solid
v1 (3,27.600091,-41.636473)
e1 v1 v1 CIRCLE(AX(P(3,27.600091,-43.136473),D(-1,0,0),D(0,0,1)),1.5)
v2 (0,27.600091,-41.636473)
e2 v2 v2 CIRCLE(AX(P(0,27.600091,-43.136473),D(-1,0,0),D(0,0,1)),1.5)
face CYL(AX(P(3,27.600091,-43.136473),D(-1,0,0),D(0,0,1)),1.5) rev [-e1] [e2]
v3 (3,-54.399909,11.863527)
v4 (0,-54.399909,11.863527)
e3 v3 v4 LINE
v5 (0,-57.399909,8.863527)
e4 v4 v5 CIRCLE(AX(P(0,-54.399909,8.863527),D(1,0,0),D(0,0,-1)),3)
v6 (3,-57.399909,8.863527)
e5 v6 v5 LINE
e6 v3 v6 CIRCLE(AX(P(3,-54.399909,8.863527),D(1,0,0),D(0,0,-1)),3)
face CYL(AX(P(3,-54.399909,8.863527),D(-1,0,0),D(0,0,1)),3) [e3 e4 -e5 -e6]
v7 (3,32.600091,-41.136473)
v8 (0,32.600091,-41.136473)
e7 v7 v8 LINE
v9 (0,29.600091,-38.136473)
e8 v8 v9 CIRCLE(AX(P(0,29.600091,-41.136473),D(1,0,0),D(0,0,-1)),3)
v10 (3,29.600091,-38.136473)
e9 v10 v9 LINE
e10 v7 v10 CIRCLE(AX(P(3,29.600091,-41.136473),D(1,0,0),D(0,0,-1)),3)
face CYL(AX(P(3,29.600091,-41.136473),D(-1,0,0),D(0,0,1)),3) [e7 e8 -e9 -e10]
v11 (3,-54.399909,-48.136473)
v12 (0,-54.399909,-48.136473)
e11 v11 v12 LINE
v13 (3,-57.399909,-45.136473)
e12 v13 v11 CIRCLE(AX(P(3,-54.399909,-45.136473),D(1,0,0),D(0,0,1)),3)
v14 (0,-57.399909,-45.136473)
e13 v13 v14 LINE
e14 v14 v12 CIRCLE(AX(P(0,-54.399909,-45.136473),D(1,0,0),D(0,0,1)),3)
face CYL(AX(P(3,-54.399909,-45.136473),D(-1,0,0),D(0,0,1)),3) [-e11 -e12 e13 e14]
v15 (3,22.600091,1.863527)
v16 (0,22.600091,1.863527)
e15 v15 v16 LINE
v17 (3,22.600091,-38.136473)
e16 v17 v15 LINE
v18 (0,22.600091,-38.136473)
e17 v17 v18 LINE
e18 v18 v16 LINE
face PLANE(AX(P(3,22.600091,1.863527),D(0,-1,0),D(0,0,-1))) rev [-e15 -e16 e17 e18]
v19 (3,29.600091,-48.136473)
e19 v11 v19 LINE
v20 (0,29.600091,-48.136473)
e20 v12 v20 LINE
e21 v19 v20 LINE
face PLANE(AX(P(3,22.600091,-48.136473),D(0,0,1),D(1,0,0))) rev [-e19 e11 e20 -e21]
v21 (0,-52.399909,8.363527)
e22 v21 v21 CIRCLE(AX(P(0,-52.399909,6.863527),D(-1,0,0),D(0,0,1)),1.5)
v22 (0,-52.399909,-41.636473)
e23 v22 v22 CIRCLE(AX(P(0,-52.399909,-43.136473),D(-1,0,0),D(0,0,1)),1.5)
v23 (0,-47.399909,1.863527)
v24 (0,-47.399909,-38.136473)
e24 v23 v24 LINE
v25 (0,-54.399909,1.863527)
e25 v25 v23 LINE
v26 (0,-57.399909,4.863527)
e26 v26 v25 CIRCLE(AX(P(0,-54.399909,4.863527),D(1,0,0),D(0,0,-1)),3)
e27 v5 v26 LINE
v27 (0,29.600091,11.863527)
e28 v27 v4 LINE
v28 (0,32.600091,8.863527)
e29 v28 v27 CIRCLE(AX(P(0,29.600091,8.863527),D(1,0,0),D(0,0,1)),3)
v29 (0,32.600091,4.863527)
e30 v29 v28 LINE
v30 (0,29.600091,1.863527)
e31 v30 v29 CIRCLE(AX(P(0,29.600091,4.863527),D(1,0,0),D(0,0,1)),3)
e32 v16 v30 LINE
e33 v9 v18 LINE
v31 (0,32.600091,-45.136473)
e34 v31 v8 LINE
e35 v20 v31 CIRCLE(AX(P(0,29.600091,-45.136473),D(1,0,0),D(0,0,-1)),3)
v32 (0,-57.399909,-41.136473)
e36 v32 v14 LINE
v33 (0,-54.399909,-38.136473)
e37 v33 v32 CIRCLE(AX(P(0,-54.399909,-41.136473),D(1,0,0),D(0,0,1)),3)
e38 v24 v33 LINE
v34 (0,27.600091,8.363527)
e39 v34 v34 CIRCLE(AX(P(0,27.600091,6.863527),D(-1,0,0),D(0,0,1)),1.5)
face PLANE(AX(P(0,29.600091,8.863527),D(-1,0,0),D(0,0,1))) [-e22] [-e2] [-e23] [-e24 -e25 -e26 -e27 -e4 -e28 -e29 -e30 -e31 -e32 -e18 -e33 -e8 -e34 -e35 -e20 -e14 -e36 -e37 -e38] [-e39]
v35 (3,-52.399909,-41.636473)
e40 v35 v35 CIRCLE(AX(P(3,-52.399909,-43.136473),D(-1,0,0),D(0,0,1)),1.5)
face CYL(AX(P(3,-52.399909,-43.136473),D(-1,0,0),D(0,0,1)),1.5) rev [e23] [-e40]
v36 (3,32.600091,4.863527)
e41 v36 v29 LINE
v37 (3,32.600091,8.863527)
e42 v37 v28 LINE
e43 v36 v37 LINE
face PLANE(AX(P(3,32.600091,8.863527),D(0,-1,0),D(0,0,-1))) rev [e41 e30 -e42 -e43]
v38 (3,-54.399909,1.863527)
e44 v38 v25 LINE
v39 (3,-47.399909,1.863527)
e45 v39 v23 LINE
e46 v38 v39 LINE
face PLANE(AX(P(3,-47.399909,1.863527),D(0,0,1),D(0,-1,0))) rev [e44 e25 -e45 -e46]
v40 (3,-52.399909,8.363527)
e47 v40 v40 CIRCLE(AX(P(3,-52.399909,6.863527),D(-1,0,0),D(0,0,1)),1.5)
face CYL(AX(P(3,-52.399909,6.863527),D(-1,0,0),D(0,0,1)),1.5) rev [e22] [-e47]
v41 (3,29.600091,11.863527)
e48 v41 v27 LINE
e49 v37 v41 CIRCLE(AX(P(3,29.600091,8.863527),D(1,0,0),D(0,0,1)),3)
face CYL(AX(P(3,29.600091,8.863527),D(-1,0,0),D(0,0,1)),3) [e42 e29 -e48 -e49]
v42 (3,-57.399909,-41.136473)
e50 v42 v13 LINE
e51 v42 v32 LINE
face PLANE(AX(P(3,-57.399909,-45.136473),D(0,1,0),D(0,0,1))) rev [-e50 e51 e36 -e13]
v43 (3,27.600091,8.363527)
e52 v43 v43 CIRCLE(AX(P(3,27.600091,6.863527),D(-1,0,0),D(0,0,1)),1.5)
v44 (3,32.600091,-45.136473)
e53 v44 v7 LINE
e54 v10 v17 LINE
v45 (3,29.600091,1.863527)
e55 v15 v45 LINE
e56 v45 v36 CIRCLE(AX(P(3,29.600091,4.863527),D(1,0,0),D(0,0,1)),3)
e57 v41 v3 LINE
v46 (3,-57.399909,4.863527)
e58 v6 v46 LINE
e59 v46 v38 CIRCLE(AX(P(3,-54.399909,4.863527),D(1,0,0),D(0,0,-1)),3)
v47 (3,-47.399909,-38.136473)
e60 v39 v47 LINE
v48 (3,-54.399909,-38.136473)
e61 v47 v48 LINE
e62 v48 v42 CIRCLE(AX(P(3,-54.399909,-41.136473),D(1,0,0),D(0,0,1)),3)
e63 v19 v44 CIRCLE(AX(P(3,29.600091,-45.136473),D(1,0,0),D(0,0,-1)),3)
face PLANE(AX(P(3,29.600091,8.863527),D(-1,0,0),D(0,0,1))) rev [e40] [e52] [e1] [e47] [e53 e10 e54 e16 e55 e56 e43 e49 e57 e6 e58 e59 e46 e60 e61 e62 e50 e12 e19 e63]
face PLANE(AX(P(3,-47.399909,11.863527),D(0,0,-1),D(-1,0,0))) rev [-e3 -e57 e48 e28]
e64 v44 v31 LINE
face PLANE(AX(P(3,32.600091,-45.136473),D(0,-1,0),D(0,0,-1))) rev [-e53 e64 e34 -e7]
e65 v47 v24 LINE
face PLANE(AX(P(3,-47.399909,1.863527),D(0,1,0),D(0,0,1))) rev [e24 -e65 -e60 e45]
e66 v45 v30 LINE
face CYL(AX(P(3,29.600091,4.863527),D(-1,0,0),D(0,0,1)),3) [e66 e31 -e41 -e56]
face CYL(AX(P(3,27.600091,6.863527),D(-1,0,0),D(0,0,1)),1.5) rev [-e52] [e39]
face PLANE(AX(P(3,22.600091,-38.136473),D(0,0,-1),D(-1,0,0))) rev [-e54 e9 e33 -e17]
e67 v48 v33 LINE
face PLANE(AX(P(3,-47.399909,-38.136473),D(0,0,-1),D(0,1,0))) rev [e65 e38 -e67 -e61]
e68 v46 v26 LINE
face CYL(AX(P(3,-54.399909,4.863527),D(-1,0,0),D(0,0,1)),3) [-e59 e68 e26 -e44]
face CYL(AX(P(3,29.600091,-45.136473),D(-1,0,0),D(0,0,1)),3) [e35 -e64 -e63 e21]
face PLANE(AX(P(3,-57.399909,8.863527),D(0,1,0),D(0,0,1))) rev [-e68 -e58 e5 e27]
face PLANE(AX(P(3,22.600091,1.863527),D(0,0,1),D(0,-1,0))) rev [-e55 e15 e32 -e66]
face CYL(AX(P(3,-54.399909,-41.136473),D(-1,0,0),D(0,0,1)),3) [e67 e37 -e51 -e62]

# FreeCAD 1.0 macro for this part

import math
import FreeCAD as App
import Part
import Sketcher
from FreeCAD import Vector

doc = App.newDocument("Part")
params = doc.addObject("Spreadsheet::Sheet", "Params")
for row, (alias, value) in enumerate([
    ("sketch1_radius", "3 mm"),
    ("sketch1_width", "7 mm"),
    ("sketch1_width2", "84 mm"),
    ("sketch1_height", "40 mm"),
    ("sketch1_height2", "4 mm"),
    ("pad1_length", "3 mm"),
    ("sketch2_diameter", "3 mm"),
], start=1):
    params.set(f"A{row}", alias)
    params.set(f"B{row}", "=" + value)
    params.setAlias(f"B{row}", alias)

body = doc.addObject("PartDesign::Body", "Body")

sketch1 = doc.addObject("Sketcher::SketchObject", "Sketch")
body.addObject(sketch1)
sketch1.AttachmentSupport = (doc.YZ_Plane, [""])
sketch1.MapMode = "FlatFace"
sketch1.addGeometry([
    Part.LineSegment(Vector(22.600091, -38.136473, 0), Vector(22.600091, 1.863527, 0)),
    Part.LineSegment(Vector(22.600091, 1.863527, 0), Vector(29.600091, 1.863527, 0)),
    Part.ArcOfCircle(Part.Circle(Vector(29.600091, 4.863527, 0), Vector(0, 0, 1), 3), math.radians(-90), math.radians(0)),
    Part.LineSegment(Vector(32.600091, 4.863527, 0), Vector(32.600091, 8.863527, 0)),
    Part.ArcOfCircle(Part.Circle(Vector(29.600091, 8.863527, 0), Vector(0, 0, 1), 3), math.radians(0), math.radians(90)),
    Part.LineSegment(Vector(29.600091, 11.863527, 0), Vector(-54.399909, 11.863527, 0)),
    Part.ArcOfCircle(Part.Circle(Vector(-54.399909, 8.863527, 0), Vector(0, 0, 1), 3), math.radians(90), math.radians(180)),
    Part.LineSegment(Vector(-57.399909, 8.863527, 0), Vector(-57.399909, 4.863527, 0)),
    Part.ArcOfCircle(Part.Circle(Vector(-54.399909, 4.863527, 0), Vector(0, 0, 1), 3), math.radians(-180), math.radians(-90)),
    Part.LineSegment(Vector(-54.399909, 1.863527, 0), Vector(-47.399909, 1.863527, 0)),
    Part.LineSegment(Vector(-47.399909, 1.863527, 0), Vector(-47.399909, -38.136473, 0)),
    Part.LineSegment(Vector(-47.399909, -38.136473, 0), Vector(-54.399909, -38.136473, 0)),
    Part.ArcOfCircle(Part.Circle(Vector(-54.399909, -41.136473, 0), Vector(0, 0, 1), 3), math.radians(90), math.radians(180)),
    Part.LineSegment(Vector(-57.399909, -41.136473, 0), Vector(-57.399909, -45.136473, 0)),
    Part.ArcOfCircle(Part.Circle(Vector(-54.399909, -45.136473, 0), Vector(0, 0, 1), 3), math.radians(-180), math.radians(-90)),
    Part.LineSegment(Vector(-54.399909, -48.136473, 0), Vector(29.600091, -48.136473, 0)),
    Part.ArcOfCircle(Part.Circle(Vector(29.600091, -45.136473, 0), Vector(0, 0, 1), 3), math.radians(-90), math.radians(0)),
    Part.LineSegment(Vector(32.600091, -45.136473, 0), Vector(32.600091, -41.136473, 0)),
    Part.ArcOfCircle(Part.Circle(Vector(29.600091, -41.136473, 0), Vector(0, 0, 1), 3), math.radians(0), math.radians(90)),
    Part.LineSegment(Vector(29.600091, -38.136473, 0), Vector(22.600091, -38.136473, 0)),
], False)
sketch1.addConstraint([
    Sketcher.Constraint("Coincident", 0, 2, 1, 1),
    Sketcher.Constraint("Tangent", 1, 2, 2, 1),
    Sketcher.Constraint("Tangent", 2, 2, 3, 1),
    Sketcher.Constraint("Tangent", 3, 2, 4, 1),
    Sketcher.Constraint("Tangent", 4, 2, 5, 1),
    Sketcher.Constraint("Tangent", 5, 2, 6, 1),
    Sketcher.Constraint("Tangent", 6, 2, 7, 1),
    Sketcher.Constraint("Tangent", 7, 2, 8, 1),
    Sketcher.Constraint("Tangent", 8, 2, 9, 1),
    Sketcher.Constraint("Coincident", 9, 2, 10, 1),
    Sketcher.Constraint("Coincident", 10, 2, 11, 1),
    Sketcher.Constraint("Tangent", 11, 2, 12, 1),
    Sketcher.Constraint("Tangent", 12, 2, 13, 1),
    Sketcher.Constraint("Tangent", 13, 2, 14, 1),
    Sketcher.Constraint("Tangent", 14, 2, 15, 1),
    Sketcher.Constraint("Tangent", 15, 2, 16, 1),
    Sketcher.Constraint("Tangent", 16, 2, 17, 1),
    Sketcher.Constraint("Tangent", 17, 2, 18, 1),
    Sketcher.Constraint("Tangent", 18, 2, 19, 1),
    Sketcher.Constraint("Coincident", 19, 2, 0, 1),
    Sketcher.Constraint("Vertical", 0),
    Sketcher.Constraint("Horizontal", 1),
    Sketcher.Constraint("Vertical", 3),
    Sketcher.Constraint("Horizontal", 5),
    Sketcher.Constraint("Vertical", 7),
    Sketcher.Constraint("Horizontal", 9),
    Sketcher.Constraint("Vertical", 10),
    Sketcher.Constraint("Horizontal", 11),
    Sketcher.Constraint("Vertical", 13),
    Sketcher.Constraint("Horizontal", 15),
    Sketcher.Constraint("Vertical", 17),
    Sketcher.Constraint("Horizontal", 19),
    Sketcher.Constraint("Equal", 2, 4),
    Sketcher.Constraint("Equal", 4, 6),
    Sketcher.Constraint("Equal", 6, 8),
    Sketcher.Constraint("Equal", 8, 12),
    Sketcher.Constraint("Equal", 12, 14),
    Sketcher.Constraint("Equal", 14, 16),
    Sketcher.Constraint("Equal", 16, 18),
    Sketcher.Constraint("Horizontal", 2, 3, 8, 3),
    Sketcher.Constraint("Horizontal", 12, 3, 18, 3),
    Sketcher.Constraint("Vertical", 8, 3, 12, 3),
    Sketcher.Constraint("Vertical", 4, 3, 16, 3),
    Sketcher.Constraint("Equal", 1, 9),
    Sketcher.Constraint("Equal", 7, 13),
    Sketcher.Constraint("Radius", 2, 3.0),
    Sketcher.Constraint("DistanceX", 1, 1, 1, 2, 7.0),
    Sketcher.Constraint("DistanceX", 5, 2, 5, 1, 84.0),
    Sketcher.Constraint("DistanceY", 0, 1, 0, 2, 40.0),
    Sketcher.Constraint("DistanceY", 3, 1, 3, 2, 4.0),
    Sketcher.Constraint("DistanceX", -1, 1, 2, 3, 29.600091),
    Sketcher.Constraint("DistanceY", -1, 1, 2, 3, 4.863527),
])
sketch1.setExpression("Constraints[45]", "Params.sketch1_radius")
sketch1.setExpression("Constraints[46]", "Params.sketch1_width")
sketch1.setExpression("Constraints[47]", "Params.sketch1_width2")
sketch1.setExpression("Constraints[48]", "Params.sketch1_height")
sketch1.setExpression("Constraints[49]", "Params.sketch1_height2")
pad1 = doc.addObject("PartDesign::Pad", "Pad")
body.addObject(pad1)
pad1.Profile = sketch1
pad1.setExpression("Length", "Params.pad1_length")

sketch2 = doc.addObject("Sketcher::SketchObject", "Sketch001")
body.addObject(sketch2)
sketch2.AttachmentSupport = (doc.YZ_Plane, [""])
sketch2.MapMode = "FlatFace"
sketch2.addGeometry([
    Part.Circle(Vector(27.600091, -43.136473, 0), Vector(0, 0, 1), 1.5),
    Part.Circle(Vector(27.600091, 6.863527, 0), Vector(0, 0, 1), 1.5),
    Part.Circle(Vector(-52.399909, 6.863527, 0), Vector(0, 0, 1), 1.5),
    Part.Circle(Vector(-52.399909, -43.136473, 0), Vector(0, 0, 1), 1.5),
], False)
sketch2.addConstraint([
    Sketcher.Constraint("Equal", 0, 1),
    Sketcher.Constraint("Equal", 1, 2),
    Sketcher.Constraint("Equal", 2, 3),
    Sketcher.Constraint("Horizontal", 1, 3, 2, 3),
    Sketcher.Constraint("Horizontal", 0, 3, 3, 3),
    Sketcher.Constraint("Vertical", 0, 3, 1, 3),
    Sketcher.Constraint("Vertical", 2, 3, 3, 3),
    Sketcher.Constraint("Diameter", 0, 3.0),
    Sketcher.Constraint("DistanceY", 0, 3, 1, 3, 50.0),
    Sketcher.Constraint("DistanceX", 2, 3, 1, 3, 80.0),
    Sketcher.Constraint("DistanceX", -1, 1, 0, 3, 27.600091),
    Sketcher.Constraint("DistanceY", 0, 3, -1, 1, 43.136473),
])
sketch2.setExpression("Constraints[7]", "Params.sketch2_diameter")
pocket1 = doc.addObject("PartDesign::Pocket", "Pocket")
body.addObject(pocket1)
pocket1.Profile = sketch2
pocket1.Type = "ThroughAll"
pocket1.Reversed = True

doc.recompute()
